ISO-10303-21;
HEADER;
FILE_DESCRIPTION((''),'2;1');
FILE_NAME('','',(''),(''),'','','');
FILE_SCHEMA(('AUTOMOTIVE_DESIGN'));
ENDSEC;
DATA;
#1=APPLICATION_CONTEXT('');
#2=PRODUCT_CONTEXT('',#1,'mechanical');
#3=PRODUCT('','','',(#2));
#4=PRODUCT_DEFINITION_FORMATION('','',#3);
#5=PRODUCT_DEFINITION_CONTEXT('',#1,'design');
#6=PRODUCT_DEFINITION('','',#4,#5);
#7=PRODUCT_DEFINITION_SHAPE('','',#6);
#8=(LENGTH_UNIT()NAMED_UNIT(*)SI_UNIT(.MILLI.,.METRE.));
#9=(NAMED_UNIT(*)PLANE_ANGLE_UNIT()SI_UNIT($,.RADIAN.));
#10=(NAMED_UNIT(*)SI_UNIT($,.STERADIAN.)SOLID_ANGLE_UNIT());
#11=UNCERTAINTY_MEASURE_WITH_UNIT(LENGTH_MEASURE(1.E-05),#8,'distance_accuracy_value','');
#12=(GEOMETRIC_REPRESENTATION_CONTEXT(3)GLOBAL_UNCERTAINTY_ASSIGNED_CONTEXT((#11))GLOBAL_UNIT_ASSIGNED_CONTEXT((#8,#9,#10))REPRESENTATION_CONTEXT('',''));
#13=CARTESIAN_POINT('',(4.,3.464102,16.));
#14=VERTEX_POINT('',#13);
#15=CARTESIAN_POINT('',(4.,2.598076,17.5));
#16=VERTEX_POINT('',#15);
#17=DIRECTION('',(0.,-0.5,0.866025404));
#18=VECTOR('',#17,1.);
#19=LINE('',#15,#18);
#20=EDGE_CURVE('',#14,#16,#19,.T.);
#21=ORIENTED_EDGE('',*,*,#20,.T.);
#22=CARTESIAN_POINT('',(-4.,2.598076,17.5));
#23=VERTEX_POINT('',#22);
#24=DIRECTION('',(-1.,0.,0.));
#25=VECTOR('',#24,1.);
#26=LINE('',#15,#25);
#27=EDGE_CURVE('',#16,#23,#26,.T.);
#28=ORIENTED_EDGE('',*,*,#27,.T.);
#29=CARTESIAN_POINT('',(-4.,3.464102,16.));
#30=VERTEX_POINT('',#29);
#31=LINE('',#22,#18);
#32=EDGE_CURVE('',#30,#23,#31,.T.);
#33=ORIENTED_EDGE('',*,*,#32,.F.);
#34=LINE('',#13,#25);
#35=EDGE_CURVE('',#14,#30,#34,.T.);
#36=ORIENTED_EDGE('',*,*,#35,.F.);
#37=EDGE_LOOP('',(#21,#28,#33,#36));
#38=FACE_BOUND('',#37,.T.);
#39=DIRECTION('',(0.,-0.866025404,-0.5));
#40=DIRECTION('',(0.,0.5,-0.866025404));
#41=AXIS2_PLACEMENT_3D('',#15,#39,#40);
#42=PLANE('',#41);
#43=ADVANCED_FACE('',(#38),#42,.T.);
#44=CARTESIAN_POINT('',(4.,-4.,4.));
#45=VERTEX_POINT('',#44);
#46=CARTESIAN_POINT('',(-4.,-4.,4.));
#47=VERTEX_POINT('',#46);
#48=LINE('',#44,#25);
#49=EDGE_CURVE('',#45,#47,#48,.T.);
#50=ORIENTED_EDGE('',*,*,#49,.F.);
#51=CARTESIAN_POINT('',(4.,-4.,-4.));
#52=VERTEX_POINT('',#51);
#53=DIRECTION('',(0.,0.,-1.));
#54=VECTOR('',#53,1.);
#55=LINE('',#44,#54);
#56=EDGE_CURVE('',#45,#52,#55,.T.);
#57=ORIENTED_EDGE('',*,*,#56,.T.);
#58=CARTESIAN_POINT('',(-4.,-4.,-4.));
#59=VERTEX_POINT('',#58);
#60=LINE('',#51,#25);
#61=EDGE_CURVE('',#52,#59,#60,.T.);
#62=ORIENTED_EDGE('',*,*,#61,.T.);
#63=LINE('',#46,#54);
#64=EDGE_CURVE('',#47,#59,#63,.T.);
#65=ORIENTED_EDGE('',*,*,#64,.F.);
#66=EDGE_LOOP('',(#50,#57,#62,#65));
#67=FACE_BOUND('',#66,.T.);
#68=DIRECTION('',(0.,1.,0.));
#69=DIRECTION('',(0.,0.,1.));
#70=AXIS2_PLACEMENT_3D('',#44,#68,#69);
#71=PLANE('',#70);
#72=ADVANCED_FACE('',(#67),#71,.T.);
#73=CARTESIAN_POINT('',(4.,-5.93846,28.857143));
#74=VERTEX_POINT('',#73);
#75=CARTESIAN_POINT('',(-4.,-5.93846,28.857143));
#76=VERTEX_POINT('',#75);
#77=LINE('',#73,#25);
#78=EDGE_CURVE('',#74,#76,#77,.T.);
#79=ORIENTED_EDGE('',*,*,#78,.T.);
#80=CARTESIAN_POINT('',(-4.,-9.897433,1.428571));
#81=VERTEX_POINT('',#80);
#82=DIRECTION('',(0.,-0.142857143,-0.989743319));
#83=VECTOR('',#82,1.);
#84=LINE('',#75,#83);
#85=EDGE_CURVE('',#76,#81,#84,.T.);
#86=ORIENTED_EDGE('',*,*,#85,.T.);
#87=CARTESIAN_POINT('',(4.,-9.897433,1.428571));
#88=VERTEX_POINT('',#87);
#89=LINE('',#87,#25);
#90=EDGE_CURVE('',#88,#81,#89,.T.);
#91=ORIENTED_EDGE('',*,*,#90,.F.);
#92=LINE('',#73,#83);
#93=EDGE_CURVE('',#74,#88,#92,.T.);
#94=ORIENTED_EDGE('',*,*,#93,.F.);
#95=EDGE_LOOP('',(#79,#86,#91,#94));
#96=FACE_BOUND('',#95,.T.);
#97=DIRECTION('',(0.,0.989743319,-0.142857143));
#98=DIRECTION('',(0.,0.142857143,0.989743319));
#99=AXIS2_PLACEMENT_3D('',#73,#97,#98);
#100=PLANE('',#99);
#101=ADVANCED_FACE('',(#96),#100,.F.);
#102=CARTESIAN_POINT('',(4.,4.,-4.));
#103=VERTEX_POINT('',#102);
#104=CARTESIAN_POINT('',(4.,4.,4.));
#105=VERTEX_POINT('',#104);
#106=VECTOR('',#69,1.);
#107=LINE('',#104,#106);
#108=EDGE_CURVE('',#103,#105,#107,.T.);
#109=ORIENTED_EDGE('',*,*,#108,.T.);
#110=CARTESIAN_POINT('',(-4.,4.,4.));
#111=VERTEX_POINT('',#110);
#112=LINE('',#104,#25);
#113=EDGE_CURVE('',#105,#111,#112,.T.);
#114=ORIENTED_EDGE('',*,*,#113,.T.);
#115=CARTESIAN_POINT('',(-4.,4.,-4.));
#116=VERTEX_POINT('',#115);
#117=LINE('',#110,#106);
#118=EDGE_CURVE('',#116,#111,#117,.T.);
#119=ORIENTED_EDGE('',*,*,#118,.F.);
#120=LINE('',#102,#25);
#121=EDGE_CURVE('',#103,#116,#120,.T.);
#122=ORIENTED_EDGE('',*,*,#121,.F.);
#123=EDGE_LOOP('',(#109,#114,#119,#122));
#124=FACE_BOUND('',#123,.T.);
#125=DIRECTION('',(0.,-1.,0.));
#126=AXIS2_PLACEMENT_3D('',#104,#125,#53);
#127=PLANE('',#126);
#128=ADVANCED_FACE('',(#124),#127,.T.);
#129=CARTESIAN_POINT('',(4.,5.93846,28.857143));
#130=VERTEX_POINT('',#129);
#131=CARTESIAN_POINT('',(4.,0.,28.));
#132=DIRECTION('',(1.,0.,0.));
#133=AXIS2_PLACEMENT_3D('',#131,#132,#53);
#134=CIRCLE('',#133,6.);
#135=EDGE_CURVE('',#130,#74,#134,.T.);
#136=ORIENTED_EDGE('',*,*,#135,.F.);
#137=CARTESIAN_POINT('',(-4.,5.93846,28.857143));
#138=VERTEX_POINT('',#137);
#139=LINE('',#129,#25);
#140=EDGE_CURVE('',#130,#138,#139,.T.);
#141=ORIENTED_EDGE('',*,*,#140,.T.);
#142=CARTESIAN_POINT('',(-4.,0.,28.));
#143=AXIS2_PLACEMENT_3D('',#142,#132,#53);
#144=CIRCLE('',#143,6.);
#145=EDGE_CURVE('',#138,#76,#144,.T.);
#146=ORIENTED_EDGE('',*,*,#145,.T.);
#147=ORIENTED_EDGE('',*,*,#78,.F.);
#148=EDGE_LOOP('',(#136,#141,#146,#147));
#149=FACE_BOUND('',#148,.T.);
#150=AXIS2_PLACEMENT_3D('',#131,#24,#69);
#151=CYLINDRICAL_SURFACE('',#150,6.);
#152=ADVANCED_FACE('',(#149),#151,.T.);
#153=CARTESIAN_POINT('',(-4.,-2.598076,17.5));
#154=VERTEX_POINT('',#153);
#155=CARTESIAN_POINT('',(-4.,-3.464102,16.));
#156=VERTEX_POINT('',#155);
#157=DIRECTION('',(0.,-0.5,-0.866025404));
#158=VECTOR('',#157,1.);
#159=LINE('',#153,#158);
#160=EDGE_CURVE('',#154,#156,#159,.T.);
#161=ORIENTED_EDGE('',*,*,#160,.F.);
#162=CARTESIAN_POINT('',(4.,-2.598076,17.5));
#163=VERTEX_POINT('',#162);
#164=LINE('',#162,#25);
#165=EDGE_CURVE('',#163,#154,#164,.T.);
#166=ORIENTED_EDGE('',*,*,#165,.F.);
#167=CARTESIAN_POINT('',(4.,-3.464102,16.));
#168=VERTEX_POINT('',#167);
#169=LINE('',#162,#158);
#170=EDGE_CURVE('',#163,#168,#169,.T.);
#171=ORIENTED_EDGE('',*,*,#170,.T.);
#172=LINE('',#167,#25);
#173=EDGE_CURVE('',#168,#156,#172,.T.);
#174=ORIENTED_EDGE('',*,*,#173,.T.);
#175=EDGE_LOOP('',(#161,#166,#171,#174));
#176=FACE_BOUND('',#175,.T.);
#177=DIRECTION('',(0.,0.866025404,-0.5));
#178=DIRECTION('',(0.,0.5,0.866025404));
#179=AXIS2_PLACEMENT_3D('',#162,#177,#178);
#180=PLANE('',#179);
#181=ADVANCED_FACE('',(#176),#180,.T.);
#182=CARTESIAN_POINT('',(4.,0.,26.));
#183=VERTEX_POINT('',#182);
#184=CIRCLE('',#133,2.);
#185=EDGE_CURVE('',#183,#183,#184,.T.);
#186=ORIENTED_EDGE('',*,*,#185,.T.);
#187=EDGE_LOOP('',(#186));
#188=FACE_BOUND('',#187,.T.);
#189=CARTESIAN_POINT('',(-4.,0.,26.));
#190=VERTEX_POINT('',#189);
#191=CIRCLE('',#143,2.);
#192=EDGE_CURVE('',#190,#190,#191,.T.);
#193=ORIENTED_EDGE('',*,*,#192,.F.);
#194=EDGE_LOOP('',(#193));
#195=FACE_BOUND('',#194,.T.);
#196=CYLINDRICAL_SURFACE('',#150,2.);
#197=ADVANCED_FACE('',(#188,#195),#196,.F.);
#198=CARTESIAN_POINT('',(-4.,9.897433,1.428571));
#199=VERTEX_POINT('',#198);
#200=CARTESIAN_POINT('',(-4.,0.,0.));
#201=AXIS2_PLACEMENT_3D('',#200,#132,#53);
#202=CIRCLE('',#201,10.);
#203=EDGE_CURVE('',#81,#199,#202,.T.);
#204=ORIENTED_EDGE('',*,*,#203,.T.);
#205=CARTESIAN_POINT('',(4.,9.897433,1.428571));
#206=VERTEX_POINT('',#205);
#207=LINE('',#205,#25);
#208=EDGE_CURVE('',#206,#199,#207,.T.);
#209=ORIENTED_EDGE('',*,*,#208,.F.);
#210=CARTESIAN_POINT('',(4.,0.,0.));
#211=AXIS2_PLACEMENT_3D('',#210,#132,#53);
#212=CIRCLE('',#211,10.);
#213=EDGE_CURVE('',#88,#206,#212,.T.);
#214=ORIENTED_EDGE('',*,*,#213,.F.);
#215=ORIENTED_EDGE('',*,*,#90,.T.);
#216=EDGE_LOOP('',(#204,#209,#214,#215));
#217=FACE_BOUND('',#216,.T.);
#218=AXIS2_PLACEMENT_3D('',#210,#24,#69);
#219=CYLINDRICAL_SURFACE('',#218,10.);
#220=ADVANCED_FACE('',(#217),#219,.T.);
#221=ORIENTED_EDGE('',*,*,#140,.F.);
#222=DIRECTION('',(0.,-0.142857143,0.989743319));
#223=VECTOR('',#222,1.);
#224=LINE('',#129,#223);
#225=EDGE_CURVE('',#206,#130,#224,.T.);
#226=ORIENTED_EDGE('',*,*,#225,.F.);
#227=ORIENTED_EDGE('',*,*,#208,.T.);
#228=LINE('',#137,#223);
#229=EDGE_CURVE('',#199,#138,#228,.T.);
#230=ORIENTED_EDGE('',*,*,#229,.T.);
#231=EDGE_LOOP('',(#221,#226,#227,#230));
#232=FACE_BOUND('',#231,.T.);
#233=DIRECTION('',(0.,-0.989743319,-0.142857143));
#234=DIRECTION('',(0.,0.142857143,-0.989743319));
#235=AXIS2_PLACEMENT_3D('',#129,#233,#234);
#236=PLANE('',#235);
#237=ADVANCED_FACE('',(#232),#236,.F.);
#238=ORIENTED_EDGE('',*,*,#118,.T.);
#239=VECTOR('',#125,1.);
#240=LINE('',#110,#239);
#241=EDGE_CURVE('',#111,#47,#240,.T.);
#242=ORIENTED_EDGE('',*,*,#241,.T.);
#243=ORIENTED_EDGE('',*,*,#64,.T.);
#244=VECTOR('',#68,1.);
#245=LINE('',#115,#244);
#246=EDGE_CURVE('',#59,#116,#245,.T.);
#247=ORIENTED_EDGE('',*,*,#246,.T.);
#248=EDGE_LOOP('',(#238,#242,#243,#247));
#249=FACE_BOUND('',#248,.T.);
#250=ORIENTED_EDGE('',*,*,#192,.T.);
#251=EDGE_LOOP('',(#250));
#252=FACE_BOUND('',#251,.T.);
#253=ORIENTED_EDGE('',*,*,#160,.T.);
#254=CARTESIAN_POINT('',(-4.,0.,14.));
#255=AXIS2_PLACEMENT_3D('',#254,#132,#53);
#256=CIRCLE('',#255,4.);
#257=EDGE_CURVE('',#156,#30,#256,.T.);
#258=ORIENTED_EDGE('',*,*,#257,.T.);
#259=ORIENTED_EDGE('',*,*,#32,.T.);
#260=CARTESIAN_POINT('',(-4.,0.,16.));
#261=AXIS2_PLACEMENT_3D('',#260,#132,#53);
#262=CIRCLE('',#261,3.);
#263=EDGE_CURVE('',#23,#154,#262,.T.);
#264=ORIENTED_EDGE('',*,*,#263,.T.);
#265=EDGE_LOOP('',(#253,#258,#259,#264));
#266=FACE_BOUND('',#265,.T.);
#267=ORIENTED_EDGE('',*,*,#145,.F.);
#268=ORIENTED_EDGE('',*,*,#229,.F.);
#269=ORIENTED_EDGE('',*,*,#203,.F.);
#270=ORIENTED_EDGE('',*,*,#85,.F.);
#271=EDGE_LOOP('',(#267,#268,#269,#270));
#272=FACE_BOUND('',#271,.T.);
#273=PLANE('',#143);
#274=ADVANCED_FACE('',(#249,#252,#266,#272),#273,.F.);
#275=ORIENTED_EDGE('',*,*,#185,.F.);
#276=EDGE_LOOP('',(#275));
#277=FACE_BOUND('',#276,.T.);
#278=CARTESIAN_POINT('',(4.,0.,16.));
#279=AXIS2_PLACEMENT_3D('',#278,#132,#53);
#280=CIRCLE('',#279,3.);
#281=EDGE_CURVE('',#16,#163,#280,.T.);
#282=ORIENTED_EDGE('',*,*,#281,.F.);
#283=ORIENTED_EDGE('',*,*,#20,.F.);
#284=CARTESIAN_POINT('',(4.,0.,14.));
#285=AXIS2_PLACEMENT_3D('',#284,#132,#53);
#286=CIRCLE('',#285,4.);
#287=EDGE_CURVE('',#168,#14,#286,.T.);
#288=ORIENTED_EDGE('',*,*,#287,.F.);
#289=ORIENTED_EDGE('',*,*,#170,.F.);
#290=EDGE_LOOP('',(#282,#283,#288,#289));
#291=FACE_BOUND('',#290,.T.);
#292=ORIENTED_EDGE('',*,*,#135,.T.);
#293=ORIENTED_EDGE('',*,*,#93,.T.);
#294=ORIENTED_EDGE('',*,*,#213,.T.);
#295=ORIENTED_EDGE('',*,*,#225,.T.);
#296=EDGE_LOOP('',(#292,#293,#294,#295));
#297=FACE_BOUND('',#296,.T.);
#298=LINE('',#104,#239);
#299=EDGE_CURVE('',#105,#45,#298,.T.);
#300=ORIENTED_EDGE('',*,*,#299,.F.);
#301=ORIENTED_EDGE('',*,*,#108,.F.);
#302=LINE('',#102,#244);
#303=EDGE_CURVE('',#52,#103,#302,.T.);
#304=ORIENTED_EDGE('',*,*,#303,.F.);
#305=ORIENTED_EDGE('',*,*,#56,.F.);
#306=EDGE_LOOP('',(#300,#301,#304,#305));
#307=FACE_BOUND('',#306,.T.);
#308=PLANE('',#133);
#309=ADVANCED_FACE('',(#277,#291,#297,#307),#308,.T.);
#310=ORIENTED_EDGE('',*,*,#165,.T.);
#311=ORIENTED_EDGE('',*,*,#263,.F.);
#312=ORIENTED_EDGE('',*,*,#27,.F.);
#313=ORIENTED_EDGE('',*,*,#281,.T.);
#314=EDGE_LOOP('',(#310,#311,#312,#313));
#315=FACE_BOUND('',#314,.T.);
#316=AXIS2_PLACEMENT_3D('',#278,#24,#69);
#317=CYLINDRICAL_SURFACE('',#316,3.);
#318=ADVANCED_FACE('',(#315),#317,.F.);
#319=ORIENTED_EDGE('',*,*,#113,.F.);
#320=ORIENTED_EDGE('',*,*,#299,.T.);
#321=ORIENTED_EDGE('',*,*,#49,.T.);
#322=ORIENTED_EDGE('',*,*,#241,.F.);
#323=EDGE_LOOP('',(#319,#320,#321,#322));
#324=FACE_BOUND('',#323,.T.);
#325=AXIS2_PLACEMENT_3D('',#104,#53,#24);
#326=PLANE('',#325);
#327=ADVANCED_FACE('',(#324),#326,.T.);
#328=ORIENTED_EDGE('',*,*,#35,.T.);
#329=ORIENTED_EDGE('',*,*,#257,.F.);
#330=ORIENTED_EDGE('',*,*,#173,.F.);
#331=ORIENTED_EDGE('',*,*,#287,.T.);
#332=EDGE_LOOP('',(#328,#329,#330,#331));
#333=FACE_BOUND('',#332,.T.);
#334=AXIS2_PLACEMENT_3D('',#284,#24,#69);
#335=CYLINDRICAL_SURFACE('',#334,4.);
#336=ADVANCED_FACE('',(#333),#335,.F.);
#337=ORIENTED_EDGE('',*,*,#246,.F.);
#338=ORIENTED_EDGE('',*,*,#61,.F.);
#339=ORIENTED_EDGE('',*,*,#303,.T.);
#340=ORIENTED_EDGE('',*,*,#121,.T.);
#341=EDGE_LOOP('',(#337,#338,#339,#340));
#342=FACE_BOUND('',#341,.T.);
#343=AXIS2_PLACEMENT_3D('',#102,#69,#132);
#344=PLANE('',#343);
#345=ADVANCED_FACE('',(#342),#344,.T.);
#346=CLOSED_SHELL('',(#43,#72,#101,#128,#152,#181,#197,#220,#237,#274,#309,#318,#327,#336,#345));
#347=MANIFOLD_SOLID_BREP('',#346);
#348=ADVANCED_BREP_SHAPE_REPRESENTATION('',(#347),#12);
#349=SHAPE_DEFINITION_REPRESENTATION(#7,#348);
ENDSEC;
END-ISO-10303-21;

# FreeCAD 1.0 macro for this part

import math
import FreeCAD as App
import Part
import Sketcher

V = App.Vector
Q = App.Units.Quantity


def add_polygon(sketch, points):
    """Adds a closed chain of lines whose ends are joined by coincident constraints."""
    first, n = sketch.GeometryCount, len(points)
    for a, b in zip(points, points[1:] + points[:1]):
        sketch.addGeometry(Part.LineSegment(App.Vector(*a, 0), App.Vector(*b, 0)), False)
    for i in range(n):
        sketch.addConstraint(Sketcher.Constraint("Coincident", first + i, 2, first + (i + 1) % n, 1))

doc = App.newDocument("Part")
params = doc.addObject("Spreadsheet::Sheet", "Params")
for row, (alias, value) in enumerate([
    ("sketch1_diameter", "4 mm"),
    ("sketch1_radius", "6 mm"),
    ("sketch1_radius2", "10 mm"),
    ("sketch1_radius3", "4 mm"),
    ("sketch1_radius4", "3 mm"),
    ("pad1_length", "8 mm"),
], start=1):
    params.set(f"A{row}", alias)
    params.set(f"B{row}", "=" + value)
    params.setAlias(f"B{row}", alias)

body = doc.addObject("PartDesign::Body", "Body")

sketch1 = doc.addObject("Sketcher::SketchObject", "Sketch")
body.addObject(sketch1)
sketch1.AttachmentSupport = (doc.YZ_Plane, [""])
sketch1.MapMode = "FlatFace"
sketch1.addGeometry(Part.LineSegment(V(9.897433, 1.428571, 0), V(5.93846, 28.857143, 0)), False)
sketch1.addGeometry(Part.ArcOfCircle(Part.Circle(V(0, 28, 0), V(0, 0, 1), 6), math.radians(8.213211), math.radians(171.786789)), False)
sketch1.addGeometry(Part.LineSegment(V(-5.93846, 28.857143, 0), V(-9.897433, 1.428571, 0)), False)
sketch1.addGeometry(Part.ArcOfCircle(Part.Circle(V(0, 0, 0), V(0, 0, 1), 10), math.radians(171.786789), math.radians(368.213211)), False)
sketch1.addGeometry(Part.LineSegment(V(2.598076, 17.5, 0), V(3.464102, 16, 0)), False)
sketch1.addGeometry(Part.ArcOfCircle(Part.Circle(V(0, 14, 0), V(0, 0, 1), 4), math.radians(150), math.radians(390)), False)
sketch1.addGeometry(Part.LineSegment(V(-3.464102, 16, 0), V(-2.598076, 17.5, 0)), False)
sketch1.addGeometry(Part.ArcOfCircle(Part.Circle(V(0, 16, 0), V(0, 0, 1), 3), math.radians(30), math.radians(150)), False)
add_polygon(sketch1, [(-4, 4), (4, 4), (4, -4), (-4, -4)])
sketch1.addGeometry(Part.Circle(V(0, 28, 0), V(0, 0, 1), 2), False)
sketch1.addConstraint(Sketcher.Constraint("Tangent", 0, 2, 1, 1))
sketch1.addConstraint(Sketcher.Constraint("Tangent", 1, 2, 2, 1))
sketch1.addConstraint(Sketcher.Constraint("Tangent", 2, 2, 3, 1))
sketch1.addConstraint(Sketcher.Constraint("Tangent", 3, 2, 0, 1))
sketch1.addConstraint(Sketcher.Constraint("Tangent", 4, 2, 5, 2))
sketch1.addConstraint(Sketcher.Constraint("Tangent", 5, 1, 6, 1))
sketch1.addConstraint(Sketcher.Constraint("Tangent", 6, 2, 7, 2))
sketch1.addConstraint(Sketcher.Constraint("Tangent", 7, 1, 4, 1))
sketch1.addConstraint(Sketcher.Constraint("Horizontal", 8))
sketch1.addConstraint(Sketcher.Constraint("Vertical", 9))
sketch1.addConstraint(Sketcher.Constraint("Horizontal", 10))
sketch1.addConstraint(Sketcher.Constraint("Vertical", 11))
sketch1.addConstraint(Sketcher.Constraint("Coincident", 3, 3, -1, 1))
sketch1.addConstraint(Sketcher.Constraint("Coincident", 12, 3, 1, 3))
sketch1.addConstraint(Sketcher.Constraint("Symmetric", 8, 2, 10, 2, -1, 1))
sketch1.addConstraint(Sketcher.Constraint("Symmetric", 4, 2, 5, 1, -2))
sketch1.addConstraint(Sketcher.Constraint("PointOnObject", 1, 3, -2))
sketch1.addConstraint(Sketcher.Constraint("Horizontal", 7, 3, 4, 2))
sketch1.addConstraint(Sketcher.Constraint("Equal", 10, 9))
sketch1.addConstraint(Sketcher.Constraint("Diameter", 12, Q("4 mm")))
sketch1.addConstraint(Sketcher.Constraint("Radius", 1, Q("6 mm")))
sketch1.addConstraint(Sketcher.Constraint("Radius", 3, Q("10 mm")))
sketch1.addConstraint(Sketcher.Constraint("Radius", 5, Q("4 mm")))
sketch1.addConstraint(Sketcher.Constraint("Radius", 7, Q("3 mm")))
sketch1.addConstraint(Sketcher.Constraint("DistanceX", 8, 1, 8, 2, Q("8 mm")))
sketch1.addConstraint(Sketcher.Constraint("DistanceY", -1, 1, 1, 3, Q("28 mm")))
sketch1.addConstraint(Sketcher.Constraint("DistanceY", -1, 1, 5, 3, Q("14 mm")))
sketch1.setExpression("Constraints[23]", "Params.sketch1_diameter")
sketch1.setExpression("Constraints[24]", "Params.sketch1_radius")
sketch1.setExpression("Constraints[25]", "Params.sketch1_radius2")
sketch1.setExpression("Constraints[26]", "Params.sketch1_radius3")
sketch1.setExpression("Constraints[27]", "Params.sketch1_radius4")
pad1 = doc.addObject("PartDesign::Pad", "Pad")
body.addObject(pad1)
pad1.Profile = sketch1
pad1.setExpression("Length", "Params.pad1_length")
pad1.Midplane = True

doc.recompute()
